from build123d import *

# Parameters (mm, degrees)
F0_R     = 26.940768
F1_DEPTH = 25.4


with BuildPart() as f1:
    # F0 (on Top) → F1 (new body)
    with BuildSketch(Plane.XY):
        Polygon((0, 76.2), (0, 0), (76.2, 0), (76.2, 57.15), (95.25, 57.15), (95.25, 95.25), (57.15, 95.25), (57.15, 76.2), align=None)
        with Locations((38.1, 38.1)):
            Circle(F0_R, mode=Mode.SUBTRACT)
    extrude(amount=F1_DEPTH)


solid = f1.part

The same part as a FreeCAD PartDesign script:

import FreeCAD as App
import Part
import Sketcher
Q = App.Units.Quantity


def add_polygon(sketch, points):
    """Adds a closed chain of lines whose ends are joined by coincident constraints."""
    first, n = sketch.GeometryCount, len(points)
    for a, b in zip(points, points[1:] + points[:1]):
        sketch.addGeometry(Part.LineSegment(App.Vector(*a, 0), App.Vector(*b, 0)), False)
    for i in range(n):
        sketch.addConstraint(Sketcher.Constraint("Coincident", first + i, 2, first + (i + 1) % n, 1))

doc = App.newDocument("Part")
params = doc.addObject("Spreadsheet::Sheet", "Params")
for row, (alias, value) in enumerate([
    ("sketch1_width", "3 in"),
    ("sketch1_width2", "1.5 in"),
    ("sketch1_width3", "0.75 in"),
    ("pad1_length", "1 in"),
], start=1):
    params.set(f"A{row}", alias)
    params.set(f"B{row}", "=" + value)
    params.setAlias(f"B{row}", alias)

body = doc.addObject("PartDesign::Body", "Body")

# Sketch on XY plane
sketch1 = body.newObject("Sketcher::SketchObject", "Sketch")
sketch1.AttachmentSupport = (doc.getObject("XY_Plane"), [""])
sketch1.MapMode = "FlatFace"
add_polygon(sketch1, [(0, 76.2), (0, 0), (76.2, 0), (76.2, 57.15), (95.25, 57.15), (95.25, 95.25), (57.15, 95.25), (57.15, 76.2)])  # lines 0-7
sketch1.addGeometry(Part.Circle(App.Vector(38.1, 38.1, 0), App.Vector(0, 0, 1), 26.940768), False)  # 8
sketch1.addConstraint([
    Sketcher.Constraint("Vertical", 0),
    Sketcher.Constraint("Horizontal", 1),
    Sketcher.Constraint("Vertical", 2),
    Sketcher.Constraint("Horizontal", 3),
    Sketcher.Constraint("Vertical", 4),
    Sketcher.Constraint("Horizontal", 5),
    Sketcher.Constraint("Vertical", 6),
    Sketcher.Constraint("Horizontal", 7),
    Sketcher.Constraint("Coincident", 0, 2, -1, 1),
    Sketcher.Constraint("Equal", 1, 0),
    Sketcher.Constraint("Equal", 7, 2),
    Sketcher.Constraint("Equal", 5, 4),
    Sketcher.Constraint("DistanceX", 1, 1, 1, 2, Q("3 in")),
    Sketcher.Constraint("DistanceX", 5, 2, 5, 1, Q("1.5 in")),
    Sketcher.Constraint("DistanceX", 3, 1, 3, 2, Q("0.75 in")),
    Sketcher.Constraint("DistanceX", -1, 1, 8, 3, Q("1.5 in")),
    Sketcher.Constraint("DistanceY", -1, 1, 8, 3, Q("1.5 in")),
    Sketcher.Constraint("Diameter", 8, Q("53.881536 mm")),
])
sketch1.setExpression("Constraints[20]", "Params.sketch1_width")
sketch1.setExpression("Constraints[21]", "Params.sketch1_width2")
sketch1.setExpression("Constraints[22]", "Params.sketch1_width3")
pad1 = body.newObject("PartDesign::Pad", "Pad")
pad1.Profile = sketch1
pad1.setExpression("Length", "Params.pad1_length")

doc.recompute()
